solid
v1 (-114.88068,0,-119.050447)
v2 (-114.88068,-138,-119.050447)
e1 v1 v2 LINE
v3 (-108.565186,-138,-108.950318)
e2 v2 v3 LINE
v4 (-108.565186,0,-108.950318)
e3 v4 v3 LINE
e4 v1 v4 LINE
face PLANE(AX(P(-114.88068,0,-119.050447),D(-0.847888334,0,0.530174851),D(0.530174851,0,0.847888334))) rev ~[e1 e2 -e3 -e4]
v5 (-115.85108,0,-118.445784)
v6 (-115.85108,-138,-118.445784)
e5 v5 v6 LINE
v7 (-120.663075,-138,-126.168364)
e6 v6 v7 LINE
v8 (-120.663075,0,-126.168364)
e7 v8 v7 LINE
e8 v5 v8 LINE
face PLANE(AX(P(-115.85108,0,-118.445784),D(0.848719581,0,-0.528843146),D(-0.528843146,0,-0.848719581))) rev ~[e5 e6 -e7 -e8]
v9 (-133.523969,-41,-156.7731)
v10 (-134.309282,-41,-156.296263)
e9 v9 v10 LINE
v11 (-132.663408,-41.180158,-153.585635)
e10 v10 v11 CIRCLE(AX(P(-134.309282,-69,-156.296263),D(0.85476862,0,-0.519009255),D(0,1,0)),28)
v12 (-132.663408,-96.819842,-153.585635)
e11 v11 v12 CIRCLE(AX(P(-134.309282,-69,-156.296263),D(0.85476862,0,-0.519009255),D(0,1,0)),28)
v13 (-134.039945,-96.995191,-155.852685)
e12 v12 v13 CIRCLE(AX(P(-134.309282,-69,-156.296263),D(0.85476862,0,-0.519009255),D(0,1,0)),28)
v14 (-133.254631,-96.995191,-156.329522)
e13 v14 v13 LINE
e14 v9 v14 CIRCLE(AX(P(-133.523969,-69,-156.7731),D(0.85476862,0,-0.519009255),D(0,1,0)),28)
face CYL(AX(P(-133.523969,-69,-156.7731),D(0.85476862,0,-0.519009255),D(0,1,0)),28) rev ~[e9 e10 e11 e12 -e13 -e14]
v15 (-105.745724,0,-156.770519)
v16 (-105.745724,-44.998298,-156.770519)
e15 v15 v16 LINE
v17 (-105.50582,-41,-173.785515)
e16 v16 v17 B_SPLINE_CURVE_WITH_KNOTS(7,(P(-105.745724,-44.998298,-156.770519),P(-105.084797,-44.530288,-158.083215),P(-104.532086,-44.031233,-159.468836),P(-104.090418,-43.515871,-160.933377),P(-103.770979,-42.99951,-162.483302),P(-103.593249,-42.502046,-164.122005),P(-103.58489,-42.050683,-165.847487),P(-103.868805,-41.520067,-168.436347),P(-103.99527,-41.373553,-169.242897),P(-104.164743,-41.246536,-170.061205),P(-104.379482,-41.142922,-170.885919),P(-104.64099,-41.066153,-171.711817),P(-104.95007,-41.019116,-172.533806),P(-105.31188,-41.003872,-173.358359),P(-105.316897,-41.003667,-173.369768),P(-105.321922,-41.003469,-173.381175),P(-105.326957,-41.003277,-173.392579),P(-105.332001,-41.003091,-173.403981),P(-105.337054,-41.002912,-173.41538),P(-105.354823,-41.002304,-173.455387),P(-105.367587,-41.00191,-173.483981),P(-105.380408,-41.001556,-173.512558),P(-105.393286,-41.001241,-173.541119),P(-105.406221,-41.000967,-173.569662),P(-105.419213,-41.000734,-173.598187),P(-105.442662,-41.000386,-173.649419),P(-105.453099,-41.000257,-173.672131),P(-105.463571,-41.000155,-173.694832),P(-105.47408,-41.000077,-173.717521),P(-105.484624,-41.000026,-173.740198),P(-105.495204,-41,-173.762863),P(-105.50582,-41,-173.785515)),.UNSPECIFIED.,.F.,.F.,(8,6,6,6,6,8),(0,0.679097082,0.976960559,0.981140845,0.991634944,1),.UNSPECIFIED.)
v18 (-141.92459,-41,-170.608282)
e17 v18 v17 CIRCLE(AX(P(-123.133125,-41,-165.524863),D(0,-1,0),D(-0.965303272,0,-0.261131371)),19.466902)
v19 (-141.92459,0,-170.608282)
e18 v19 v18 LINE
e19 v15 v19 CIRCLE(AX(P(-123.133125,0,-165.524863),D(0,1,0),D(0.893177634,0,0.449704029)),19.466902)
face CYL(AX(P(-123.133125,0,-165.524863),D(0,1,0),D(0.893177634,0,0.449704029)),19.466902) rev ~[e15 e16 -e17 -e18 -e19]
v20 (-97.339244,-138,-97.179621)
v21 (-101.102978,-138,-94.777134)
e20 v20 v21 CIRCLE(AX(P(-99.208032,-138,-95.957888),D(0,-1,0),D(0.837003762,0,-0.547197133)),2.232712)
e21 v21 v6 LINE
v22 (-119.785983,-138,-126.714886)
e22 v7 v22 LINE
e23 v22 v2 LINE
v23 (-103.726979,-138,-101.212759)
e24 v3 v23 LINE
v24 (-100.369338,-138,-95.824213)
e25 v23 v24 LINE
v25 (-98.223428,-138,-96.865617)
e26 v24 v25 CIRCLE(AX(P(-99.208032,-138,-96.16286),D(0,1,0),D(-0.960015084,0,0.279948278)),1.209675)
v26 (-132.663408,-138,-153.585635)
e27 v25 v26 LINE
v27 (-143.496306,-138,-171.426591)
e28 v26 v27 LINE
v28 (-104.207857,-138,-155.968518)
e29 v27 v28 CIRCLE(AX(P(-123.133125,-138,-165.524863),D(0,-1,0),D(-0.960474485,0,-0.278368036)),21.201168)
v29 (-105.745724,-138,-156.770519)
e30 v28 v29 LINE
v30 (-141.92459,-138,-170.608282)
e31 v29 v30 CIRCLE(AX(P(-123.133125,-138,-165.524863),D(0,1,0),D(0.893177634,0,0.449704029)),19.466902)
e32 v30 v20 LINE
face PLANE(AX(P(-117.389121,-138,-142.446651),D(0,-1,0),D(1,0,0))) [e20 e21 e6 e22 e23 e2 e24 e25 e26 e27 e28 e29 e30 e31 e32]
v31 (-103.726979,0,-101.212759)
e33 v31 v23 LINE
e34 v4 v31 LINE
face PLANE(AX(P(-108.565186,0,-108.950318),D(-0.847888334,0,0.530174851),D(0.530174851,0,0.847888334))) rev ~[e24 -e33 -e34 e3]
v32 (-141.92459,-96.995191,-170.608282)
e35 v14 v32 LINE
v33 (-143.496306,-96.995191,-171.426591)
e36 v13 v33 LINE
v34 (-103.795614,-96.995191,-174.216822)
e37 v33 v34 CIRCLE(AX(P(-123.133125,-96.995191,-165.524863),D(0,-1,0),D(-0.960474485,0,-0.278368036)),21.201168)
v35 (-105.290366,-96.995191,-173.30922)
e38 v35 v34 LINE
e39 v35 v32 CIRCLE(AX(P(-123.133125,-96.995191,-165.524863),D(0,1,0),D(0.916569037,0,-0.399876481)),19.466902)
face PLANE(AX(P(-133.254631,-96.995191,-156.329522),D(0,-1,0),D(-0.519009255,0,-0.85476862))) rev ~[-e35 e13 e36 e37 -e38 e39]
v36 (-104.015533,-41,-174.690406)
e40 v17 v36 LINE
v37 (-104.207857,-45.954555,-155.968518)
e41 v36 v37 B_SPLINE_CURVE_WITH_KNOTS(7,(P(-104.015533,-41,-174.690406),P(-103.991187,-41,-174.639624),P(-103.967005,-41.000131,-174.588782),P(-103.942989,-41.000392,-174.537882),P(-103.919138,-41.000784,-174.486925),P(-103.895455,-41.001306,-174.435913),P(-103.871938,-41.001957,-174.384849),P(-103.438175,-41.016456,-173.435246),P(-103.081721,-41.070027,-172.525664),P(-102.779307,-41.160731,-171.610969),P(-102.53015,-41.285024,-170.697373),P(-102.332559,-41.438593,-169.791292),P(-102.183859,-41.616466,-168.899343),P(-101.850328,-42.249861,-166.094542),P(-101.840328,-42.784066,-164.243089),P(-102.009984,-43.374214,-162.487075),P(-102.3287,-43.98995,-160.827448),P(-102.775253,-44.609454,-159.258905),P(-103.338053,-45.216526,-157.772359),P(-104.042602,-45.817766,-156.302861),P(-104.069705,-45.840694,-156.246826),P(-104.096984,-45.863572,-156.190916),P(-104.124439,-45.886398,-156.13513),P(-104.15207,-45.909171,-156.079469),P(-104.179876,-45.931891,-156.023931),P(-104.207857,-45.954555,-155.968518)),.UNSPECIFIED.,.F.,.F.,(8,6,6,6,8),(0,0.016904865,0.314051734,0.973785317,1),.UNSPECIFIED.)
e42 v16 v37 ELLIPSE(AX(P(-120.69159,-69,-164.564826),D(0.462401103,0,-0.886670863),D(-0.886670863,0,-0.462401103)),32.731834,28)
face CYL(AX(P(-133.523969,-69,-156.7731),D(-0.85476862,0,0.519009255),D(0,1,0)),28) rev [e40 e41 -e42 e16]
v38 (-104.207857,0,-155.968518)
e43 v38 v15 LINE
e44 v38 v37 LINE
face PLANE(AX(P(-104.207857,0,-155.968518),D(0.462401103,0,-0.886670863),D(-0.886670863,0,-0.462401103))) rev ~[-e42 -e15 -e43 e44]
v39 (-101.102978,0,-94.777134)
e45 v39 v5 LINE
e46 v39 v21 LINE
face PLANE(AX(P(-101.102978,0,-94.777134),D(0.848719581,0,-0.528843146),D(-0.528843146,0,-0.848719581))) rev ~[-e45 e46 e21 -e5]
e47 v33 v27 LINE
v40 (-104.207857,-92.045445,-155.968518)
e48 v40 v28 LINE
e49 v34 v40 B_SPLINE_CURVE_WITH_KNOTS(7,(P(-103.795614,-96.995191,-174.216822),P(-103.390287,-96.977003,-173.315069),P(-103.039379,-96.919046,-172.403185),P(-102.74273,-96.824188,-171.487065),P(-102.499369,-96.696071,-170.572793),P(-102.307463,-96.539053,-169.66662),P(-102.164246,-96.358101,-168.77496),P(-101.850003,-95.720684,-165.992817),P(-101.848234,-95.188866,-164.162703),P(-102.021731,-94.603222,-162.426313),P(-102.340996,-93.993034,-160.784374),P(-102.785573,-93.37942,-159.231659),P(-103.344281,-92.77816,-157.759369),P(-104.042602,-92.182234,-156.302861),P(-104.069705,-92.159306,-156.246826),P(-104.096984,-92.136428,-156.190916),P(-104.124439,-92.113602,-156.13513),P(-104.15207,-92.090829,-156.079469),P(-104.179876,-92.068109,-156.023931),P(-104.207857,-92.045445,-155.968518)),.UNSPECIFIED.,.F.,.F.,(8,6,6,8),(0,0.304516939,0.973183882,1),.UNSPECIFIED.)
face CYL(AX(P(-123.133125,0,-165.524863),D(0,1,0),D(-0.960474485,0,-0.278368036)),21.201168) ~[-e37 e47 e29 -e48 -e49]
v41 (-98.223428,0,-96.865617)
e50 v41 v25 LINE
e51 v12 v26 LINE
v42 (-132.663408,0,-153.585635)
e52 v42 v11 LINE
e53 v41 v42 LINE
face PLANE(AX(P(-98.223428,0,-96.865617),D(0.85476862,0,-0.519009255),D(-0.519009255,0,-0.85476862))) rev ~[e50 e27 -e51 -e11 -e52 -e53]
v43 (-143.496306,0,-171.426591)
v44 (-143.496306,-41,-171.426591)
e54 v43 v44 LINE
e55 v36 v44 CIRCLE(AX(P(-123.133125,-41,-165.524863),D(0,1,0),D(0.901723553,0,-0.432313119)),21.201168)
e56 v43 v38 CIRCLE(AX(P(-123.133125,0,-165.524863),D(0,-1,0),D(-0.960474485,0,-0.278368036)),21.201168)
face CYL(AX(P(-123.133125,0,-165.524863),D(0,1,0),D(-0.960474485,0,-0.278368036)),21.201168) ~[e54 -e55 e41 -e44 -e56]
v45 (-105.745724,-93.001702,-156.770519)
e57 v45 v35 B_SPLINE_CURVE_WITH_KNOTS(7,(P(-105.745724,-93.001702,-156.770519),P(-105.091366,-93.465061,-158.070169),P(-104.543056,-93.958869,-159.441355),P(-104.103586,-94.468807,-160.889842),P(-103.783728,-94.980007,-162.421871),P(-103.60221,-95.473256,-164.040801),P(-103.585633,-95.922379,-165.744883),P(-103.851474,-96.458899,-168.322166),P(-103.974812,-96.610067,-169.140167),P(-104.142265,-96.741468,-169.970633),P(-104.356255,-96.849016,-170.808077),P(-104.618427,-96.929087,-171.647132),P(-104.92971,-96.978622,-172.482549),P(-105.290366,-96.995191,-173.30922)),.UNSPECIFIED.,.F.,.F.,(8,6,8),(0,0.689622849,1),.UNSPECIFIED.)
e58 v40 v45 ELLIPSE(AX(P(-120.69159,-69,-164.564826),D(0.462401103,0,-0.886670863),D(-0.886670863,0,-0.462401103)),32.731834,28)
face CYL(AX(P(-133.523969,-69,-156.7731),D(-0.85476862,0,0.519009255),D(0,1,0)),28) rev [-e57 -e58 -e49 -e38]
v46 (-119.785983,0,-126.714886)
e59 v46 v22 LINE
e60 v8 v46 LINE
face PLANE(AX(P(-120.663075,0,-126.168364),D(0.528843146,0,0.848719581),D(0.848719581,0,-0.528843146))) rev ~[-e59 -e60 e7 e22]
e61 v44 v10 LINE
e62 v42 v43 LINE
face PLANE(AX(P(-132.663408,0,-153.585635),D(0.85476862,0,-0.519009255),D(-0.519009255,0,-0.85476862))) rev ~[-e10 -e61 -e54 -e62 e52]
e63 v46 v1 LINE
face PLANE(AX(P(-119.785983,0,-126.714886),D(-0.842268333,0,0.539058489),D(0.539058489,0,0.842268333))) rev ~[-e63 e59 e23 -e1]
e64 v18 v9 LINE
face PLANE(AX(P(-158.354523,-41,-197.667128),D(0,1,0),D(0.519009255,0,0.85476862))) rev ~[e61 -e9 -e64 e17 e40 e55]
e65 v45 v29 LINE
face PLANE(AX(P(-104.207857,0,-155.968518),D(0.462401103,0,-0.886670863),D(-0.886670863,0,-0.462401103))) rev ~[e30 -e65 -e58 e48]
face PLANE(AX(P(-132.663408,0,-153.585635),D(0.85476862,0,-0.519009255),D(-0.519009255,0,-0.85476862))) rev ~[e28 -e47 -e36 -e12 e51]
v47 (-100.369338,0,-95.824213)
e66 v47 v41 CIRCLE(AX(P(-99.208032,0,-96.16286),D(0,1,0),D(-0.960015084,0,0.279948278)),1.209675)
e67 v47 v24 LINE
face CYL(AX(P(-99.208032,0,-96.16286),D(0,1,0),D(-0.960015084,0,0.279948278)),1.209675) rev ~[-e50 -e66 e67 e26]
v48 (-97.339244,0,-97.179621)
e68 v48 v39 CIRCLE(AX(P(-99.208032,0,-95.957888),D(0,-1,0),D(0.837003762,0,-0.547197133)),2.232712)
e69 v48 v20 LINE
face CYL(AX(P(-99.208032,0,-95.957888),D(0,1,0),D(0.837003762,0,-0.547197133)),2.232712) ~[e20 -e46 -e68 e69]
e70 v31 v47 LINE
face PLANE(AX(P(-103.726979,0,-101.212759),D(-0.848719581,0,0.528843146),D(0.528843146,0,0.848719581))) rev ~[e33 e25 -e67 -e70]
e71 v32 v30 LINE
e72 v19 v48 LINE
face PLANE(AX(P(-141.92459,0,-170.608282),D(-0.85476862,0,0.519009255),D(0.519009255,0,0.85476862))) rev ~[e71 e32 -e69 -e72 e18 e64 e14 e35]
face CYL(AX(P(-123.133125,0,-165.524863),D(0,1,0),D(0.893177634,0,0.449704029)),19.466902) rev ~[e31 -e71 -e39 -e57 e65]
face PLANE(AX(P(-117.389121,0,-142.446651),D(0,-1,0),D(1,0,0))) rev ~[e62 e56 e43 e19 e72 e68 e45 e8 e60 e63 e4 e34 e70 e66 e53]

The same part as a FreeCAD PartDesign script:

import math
import FreeCAD as App
import Part
import Sketcher

doc = App.newDocument("Part")
params = doc.addObject("Spreadsheet::Sheet", "Params")
for row, (alias, value) in enumerate([
    ("pad1_length", "138 mm"),
    ("sketch2_radius", "28 mm"),
    ("pocket1_length", "49.4 mm"),
    ("pocket2_length", "78.6 mm"),
    ("sketch4_radius", "28 mm"),
    ("pocket3_length", "25 mm"),
    ("pocket4_length", "25 mm"),
], start=1):
    params.set(f"A{row}", alias)
    params.set(f"B{row}", "=" + value)
    params.setAlias(f"B{row}", alias)

body = doc.addObject("PartDesign::Body", "Body")

# Sketch on XZ plane
sketch1 = doc.addObject("Sketcher::SketchObject", "Sketch")
body.addObject(sketch1)
sketch1.AttachmentSupport = (doc.XZ_Plane, [""])
sketch1.MapMode = "FlatFace"
sketch1.addGeometry([
    Part.LineSegment(App.Vector(-103.7, -101.2, 0), App.Vector(-100.4, -95.8, 0)),  # 0
    Part.ArcOfCircle(Part.Circle(App.Vector(-99.2, -96.2, 0), App.Vector(0, 0, 1), 1.2), math.radians(-36), math.radians(164)),  # 1
    Part.LineSegment(App.Vector(-98.2, -96.9, 0), App.Vector(-132.7, -153.6, 0)),  # 2
    Part.LineSegment(App.Vector(-132.7, -153.6, 0), App.Vector(-143.5, -171.4, 0)),  # 3
    Part.ArcOfCircle(Part.Circle(App.Vector(-123.1, -165.5, 0), App.Vector(0, 0, 1), 21.2), math.radians(-164), math.radians(27)),  # 4
    Part.LineSegment(App.Vector(-104.2, -156, 0), App.Vector(-105.7, -156.8, 0)),  # 5
    Part.ArcOfCircle(Part.Circle(App.Vector(-123.1, -165.5, 0), App.Vector(0, 0, 1), 19.5), math.radians(-165), math.radians(27)),  # 6
    Part.LineSegment(App.Vector(-141.9, -170.6, 0), App.Vector(-97.3, -97.2, 0)),  # 7
    Part.ArcOfCircle(Part.Circle(App.Vector(-99.2, -96, 0), App.Vector(0, 0, 1), 2.2), math.radians(-33), math.radians(148)),  # 8
    Part.LineSegment(App.Vector(-101.1, -94.8, 0), App.Vector(-115.9, -118.4, 0)),  # 9
    Part.LineSegment(App.Vector(-115.9, -118.4, 0), App.Vector(-120.7, -126.2, 0)),  # 10
    Part.LineSegment(App.Vector(-120.7, -126.2, 0), App.Vector(-119.8, -126.7, 0)),  # 11
    Part.LineSegment(App.Vector(-119.8, -126.7, 0), App.Vector(-114.9, -119.1, 0)),  # 12
    Part.LineSegment(App.Vector(-114.9, -119.1, 0), App.Vector(-108.6, -109, 0)),  # 13
    Part.LineSegment(App.Vector(-108.6, -109, 0), App.Vector(-103.7, -101.2, 0)),  # 14
], False)
sketch1.addConstraint([
    Sketcher.Constraint("Coincident", 0, 2, 1, 2),
    Sketcher.Constraint("Coincident", 1, 1, 2, 1),
    Sketcher.Constraint("Coincident", 2, 2, 3, 1),
    Sketcher.Constraint("Coincident", 3, 2, 4, 1),
    Sketcher.Constraint("Coincident", 4, 2, 5, 1),
    Sketcher.Constraint("Coincident", 5, 2, 6, 2),
    Sketcher.Constraint("Coincident", 6, 1, 7, 1),
    Sketcher.Constraint("Coincident", 7, 2, 8, 1),
    Sketcher.Constraint("Tangent", 8, 2, 9, 1),
    Sketcher.Constraint("Coincident", 9, 2, 10, 1),
    Sketcher.Constraint("Coincident", 10, 2, 11, 1),
    Sketcher.Constraint("Coincident", 11, 2, 12, 1),
    Sketcher.Constraint("Coincident", 12, 2, 13, 1),
    Sketcher.Constraint("Coincident", 13, 2, 14, 1),
    Sketcher.Constraint("Coincident", 14, 2, 0, 1),
    Sketcher.Constraint("Coincident", 6, 3, 4, 3),
    Sketcher.Constraint("Parallel", 2, 3),
    Sketcher.Constraint("Parallel", 3, 7),
    Sketcher.Constraint("Parallel", 0, 9),
    Sketcher.Constraint("Parallel", 9, 10),
    Sketcher.Constraint("Perpendicular", 10, 11),
    Sketcher.Constraint("Parallel", 13, 14),
    Sketcher.Constraint("Vertical", 1, 3, 8, 3),
    Sketcher.Constraint("Radius", 8, 2.232712),
    Sketcher.Constraint("Radius", 1, 1.209675),
    Sketcher.Constraint("Radius", 4, 21.201168),
    Sketcher.Constraint("Radius", 6, 19.466902),
    Sketcher.Constraint("DistanceY", 5, 2, 4, 2, 0.802001),
    Sketcher.Constraint("DistanceX", 14, 2, 8, 2, 2.624001),
    Sketcher.Constraint("Distance", 13, 11.912098),
    Sketcher.Constraint("DistanceX", 3, 2, 2, 2, 10.832898),
    Sketcher.Constraint("DistanceY", 4, 2, 1, 1, 59.1029),
    Sketcher.Constraint("DistanceX", 4, 3, 5, 2, 17.387402),
    Sketcher.Constraint("DistanceX", 9, 2, 12, 2, 0.9704),
    Sketcher.Constraint("DistanceY", 13, 2, 1, 1, 12.084701),
    Sketcher.Constraint("DistanceY", 14, 2, 1, 3, 5.0499),
    Sketcher.Constraint("Distance", 0, 6.34903),
    Sketcher.Constraint("Distance", 2, 66.357159),
    Sketcher.Constraint("Distance", 7, 85.904722),
    Sketcher.Constraint("Distance", 9, 27.887479),
    Sketcher.Constraint("Distance", 11, 1.033429),
    Sketcher.Constraint("Distance", 12, 9.099759),
    Sketcher.Constraint("Distance", 14, 9.125681),
    Sketcher.Constraint("DistanceY", 1, 3, -1, 1, 96.16286),
    Sketcher.Constraint("DistanceY", 8, 3, -1, 1, 95.957888),
    Sketcher.Constraint("DistanceX", 1, 1, -1, 1, 98.223428),
    Sketcher.Constraint("DistanceX", 2, 2, -1, 1, 132.663408),
])
pad1 = doc.addObject("PartDesign::Pad", "Pad")
body.addObject(pad1)
pad1.Profile = sketch1
pad1.setExpression("Length", "Params.pad1_length")

# Sketch on an angled plane
sketch2 = doc.addObject("Sketcher::SketchObject", "Sketch001")
body.addObject(sketch2)
sketch2.Placement = App.Placement(App.Vector(-28.006843, 0, 17.00555), App.Rotation(App.Vector(0, 1, 0), App.Vector(0.519009255, 0, 0.85476862), App.Vector(0.85476862, 0, -0.519009255), "ZXY"))
sketch2.addGeometry([
    Part.LineSegment(App.Vector(-41, -219.490782, 0), App.Vector(-41, -203.304902, 0)),
    Part.ArcOfCircle(Part.Circle(App.Vector(-69, -203.304902, 0), App.Vector(0, 0, 1), 28), math.radians(0), math.radians(178.938033)),
    Part.LineSegment(App.Vector(-96.995191, -202.785957, 0), App.Vector(-96.995191, -219.490782, 0)),
    Part.LineSegment(App.Vector(-96.995191, -219.490782, 0), App.Vector(-41, -219.490782, 0)),
], False)
sketch2.addConstraint([
    Sketcher.Constraint("Tangent", 0, 2, 1, 1),
    Sketcher.Constraint("Coincident", 1, 2, 2, 1),
    Sketcher.Constraint("Coincident", 2, 2, 3, 1),
    Sketcher.Constraint("Coincident", 3, 2, 0, 1),
    Sketcher.Constraint("Vertical", 0),
    Sketcher.Constraint("Vertical", 2),
    Sketcher.Constraint("Horizontal", 3),
    Sketcher.Constraint("Radius", 1, 28.0),
    Sketcher.Constraint("DistanceX", 1, 3, -1, 1, 69.0),
    Sketcher.Constraint("DistanceX", 3, 1, 3, 2, 55.995191),
    Sketcher.Constraint("DistanceY", 0, 1, 0, 2, 16.18588),
    Sketcher.Constraint("DistanceY", 1, 3, -1, 1, 203.304902),
])
sketch2.setExpression("Constraints[7]", "Params.sketch2_radius")
pocket1 = doc.addObject("PartDesign::Pocket", "Pocket")
body.addObject(pocket1)
pocket1.Profile = sketch2
pocket1.setExpression("Length", "Params.pocket1_length")
pocket1.Reversed = True

# Sketch on an angled plane
sketch3 = doc.addObject("Sketcher::SketchObject", "Sketch002")
body.addObject(sketch3)
sketch3.Placement = App.Placement(App.Vector(-28.006843, 0, 17.00555), App.Rotation(App.Vector(0, 1, 0), App.Vector(0.519009255, 0, 0.85476862), App.Vector(0.85476862, 0, -0.519009255), "ZXY"))
sketch3.addGeometry([
    Part.LineSegment(App.Vector(-41, -251, 0), App.Vector(-41, -219, 0)),
    Part.LineSegment(App.Vector(-41, -219, 0), App.Vector(-97, -219, 0)),
    Part.LineSegment(App.Vector(-97, -219, 0), App.Vector(-97, -251, 0)),
    Part.LineSegment(App.Vector(-97, -251, 0), App.Vector(-41, -251, 0)),
], False)
sketch3.addConstraint([
    Sketcher.Constraint("Coincident", 0, 2, 1, 1),
    Sketcher.Constraint("Coincident", 1, 2, 2, 1),
    Sketcher.Constraint("Coincident", 2, 2, 3, 1),
    Sketcher.Constraint("Coincident", 3, 2, 0, 1),
    Sketcher.Constraint("Vertical", 0),
    Sketcher.Constraint("Horizontal", 1),
    Sketcher.Constraint("Vertical", 2),
    Sketcher.Constraint("Horizontal", 3),
    Sketcher.Constraint("DistanceX", 0, 2, -1, 1, 41.0),
    Sketcher.Constraint("DistanceX", 1, 2, 1, 1, 55.995191),
    Sketcher.Constraint("DistanceY", 0, 1, 0, 2, 31.65634),
    Sketcher.Constraint("DistanceY", 0, 2, -1, 1, 219.490782),
])
pocket2 = doc.addObject("PartDesign::Pocket", "Pocket001")
body.addObject(pocket2)
pocket2.Profile = sketch3
pocket2.setExpression("Length", "Params.pocket2_length")
pocket2.Reversed = True

# Sketch on an angled plane
sketch4 = doc.addObject("Sketcher::SketchObject", "Sketch003")
body.addObject(sketch4)
sketch4.Placement = App.Placement(App.Vector(-28.006843, 0, 17.00555), App.Rotation(App.Vector(0, 1, 0), App.Vector(0.519009255, 0, 0.85476862), App.Vector(0.85476862, 0, -0.519009255), "ZXY"))
sketch4.addGeometry([
    Part.LineSegment(App.Vector(-41, -219.490782, 0), App.Vector(-41, -203.304902, 0)),
    Part.ArcOfCircle(Part.Circle(App.Vector(-69, -203.304902, 0), App.Vector(0, 0, 1), 28), math.radians(0), math.radians(178.938033)),
    Part.LineSegment(App.Vector(-96.995191, -202.785957, 0), App.Vector(-96.995191, -219.490782, 0)),
    Part.LineSegment(App.Vector(-96.995191, -219.490782, 0), App.Vector(-41, -219.490782, 0)),
], False)
sketch4.addConstraint([
    Sketcher.Constraint("Tangent", 0, 2, 1, 1),
    Sketcher.Constraint("Coincident", 1, 2, 2, 1),
    Sketcher.Constraint("Coincident", 2, 2, 3, 1),
    Sketcher.Constraint("Coincident", 3, 2, 0, 1),
    Sketcher.Constraint("Vertical", 0),
    Sketcher.Constraint("Vertical", 2),
    Sketcher.Constraint("Horizontal", 3),
    Sketcher.Constraint("Radius", 1, 28.0),
    Sketcher.Constraint("DistanceX", 1, 3, -1, 1, 69.0),
    Sketcher.Constraint("DistanceX", 3, 1, 3, 2, 55.995191),
    Sketcher.Constraint("DistanceY", 0, 1, 0, 2, 16.18588),
    Sketcher.Constraint("DistanceY", 1, 3, -1, 1, 203.304902),
])
sketch4.setExpression("Constraints[7]", "Params.sketch4_radius")
pocket3 = doc.addObject("PartDesign::Pocket", "Pocket002")
body.addObject(pocket3)
pocket3.Profile = sketch4
pocket3.setExpression("Length", "Params.pocket3_length")

# Sketch on an angled plane
sketch5 = doc.addObject("Sketcher::SketchObject", "Sketch004")
body.addObject(sketch5)
sketch5.Placement = App.Placement(App.Vector(-28.006843, 0, 17.00555), App.Rotation(App.Vector(0, 1, 0), App.Vector(0.519009255, 0, 0.85476862), App.Vector(0.85476862, 0, -0.519009255), "ZXY"))
sketch5.addGeometry([
    Part.LineSegment(App.Vector(-41, -251, 0), App.Vector(-41, -219, 0)),
    Part.LineSegment(App.Vector(-41, -219, 0), App.Vector(-97, -219, 0)),
    Part.LineSegment(App.Vector(-97, -219, 0), App.Vector(-97, -251, 0)),
    Part.LineSegment(App.Vector(-97, -251, 0), App.Vector(-41, -251, 0)),
], False)
sketch5.addConstraint([
    Sketcher.Constraint("Coincident", 0, 2, 1, 1),
    Sketcher.Constraint("Coincident", 1, 2, 2, 1),
    Sketcher.Constraint("Coincident", 2, 2, 3, 1),
    Sketcher.Constraint("Coincident", 3, 2, 0, 1),
    Sketcher.Constraint("Vertical", 0),
    Sketcher.Constraint("Horizontal", 1),
    Sketcher.Constraint("Vertical", 2),
    Sketcher.Constraint("Horizontal", 3),
    Sketcher.Constraint("DistanceX", 0, 2, -1, 1, 41.0),
    Sketcher.Constraint("DistanceX", 1, 2, 1, 1, 55.995191),
    Sketcher.Constraint("DistanceY", 0, 1, 0, 2, 31.65634),
    Sketcher.Constraint("DistanceY", 0, 2, -1, 1, 219.490782),
])
pocket4 = doc.addObject("PartDesign::Pocket", "Pocket003")
body.addObject(pocket4)
pocket4.Profile = sketch5
pocket4.setExpression("Length", "Params.pocket4_length")

doc.recompute()
